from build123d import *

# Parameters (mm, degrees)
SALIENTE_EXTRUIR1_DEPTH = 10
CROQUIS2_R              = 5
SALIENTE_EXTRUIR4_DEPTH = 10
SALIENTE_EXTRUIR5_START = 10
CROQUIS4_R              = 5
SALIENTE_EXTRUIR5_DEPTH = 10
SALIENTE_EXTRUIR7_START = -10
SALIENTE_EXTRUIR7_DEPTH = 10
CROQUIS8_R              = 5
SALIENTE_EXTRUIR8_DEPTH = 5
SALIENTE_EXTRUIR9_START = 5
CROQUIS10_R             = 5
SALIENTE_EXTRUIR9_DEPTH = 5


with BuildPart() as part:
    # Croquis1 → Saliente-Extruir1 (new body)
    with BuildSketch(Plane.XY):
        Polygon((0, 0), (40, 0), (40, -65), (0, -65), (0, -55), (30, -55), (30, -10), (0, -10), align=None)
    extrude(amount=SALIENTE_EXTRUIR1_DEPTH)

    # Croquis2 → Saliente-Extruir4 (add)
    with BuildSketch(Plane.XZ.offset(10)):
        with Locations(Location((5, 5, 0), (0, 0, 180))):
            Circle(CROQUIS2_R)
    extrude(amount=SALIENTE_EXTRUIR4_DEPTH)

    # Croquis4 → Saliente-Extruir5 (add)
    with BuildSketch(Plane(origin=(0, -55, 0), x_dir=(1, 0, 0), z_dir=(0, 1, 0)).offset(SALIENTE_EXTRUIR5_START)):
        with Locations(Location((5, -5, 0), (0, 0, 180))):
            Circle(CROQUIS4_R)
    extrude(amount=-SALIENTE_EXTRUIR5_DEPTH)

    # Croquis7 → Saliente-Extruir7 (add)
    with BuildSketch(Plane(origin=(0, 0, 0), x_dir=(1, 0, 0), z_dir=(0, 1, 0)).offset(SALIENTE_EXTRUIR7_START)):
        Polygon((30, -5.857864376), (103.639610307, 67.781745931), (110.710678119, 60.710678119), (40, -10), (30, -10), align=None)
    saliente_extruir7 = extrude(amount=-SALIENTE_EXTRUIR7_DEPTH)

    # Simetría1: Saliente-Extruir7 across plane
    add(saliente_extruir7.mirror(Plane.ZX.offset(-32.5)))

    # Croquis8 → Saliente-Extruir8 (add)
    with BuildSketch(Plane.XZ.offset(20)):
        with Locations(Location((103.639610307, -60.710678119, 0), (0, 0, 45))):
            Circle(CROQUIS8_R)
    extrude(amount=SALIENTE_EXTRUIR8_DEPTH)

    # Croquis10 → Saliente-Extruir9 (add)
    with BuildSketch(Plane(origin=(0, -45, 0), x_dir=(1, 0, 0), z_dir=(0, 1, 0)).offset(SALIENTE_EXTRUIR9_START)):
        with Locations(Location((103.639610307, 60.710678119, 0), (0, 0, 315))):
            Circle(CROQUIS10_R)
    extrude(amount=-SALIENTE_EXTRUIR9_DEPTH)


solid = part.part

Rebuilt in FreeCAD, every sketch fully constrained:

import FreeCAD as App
import Part
import Sketcher
Q = App.Units.Quantity


def add_polygon(sketch, points):
    """Adds a closed chain of lines whose ends are joined by coincident constraints."""
    first, n = sketch.GeometryCount, len(points)
    for a, b in zip(points, points[1:] + points[:1]):
        sketch.addGeometry(Part.LineSegment(App.Vector(*a, 0), App.Vector(*b, 0)), False)
    for i in range(n):
        sketch.addConstraint(Sketcher.Constraint("Coincident", first + i, 2, first + (i + 1) % n, 1))

doc = App.newDocument("Part")
params = doc.addObject("Spreadsheet::Sheet", "Params")
for row, (alias, value) in enumerate([
    ("sketch1_width", "40 mm"),
    ("sketch1_width2", "30 mm"),
    ("sketch1_height", "10 mm"),
    ("sketch1_height2", "45 mm"),
    ("pad1_length", "10 mm"),
    ("sketch2_diameter", "10 mm"),
    ("pad2_length", "10 mm"),
    ("sketch3_diameter", "10 mm"),
    ("pad3_length", "10 mm"),
    ("sketch4_width", "10 mm"),
    ("sketch4_length", "100 mm"),
    ("sketch4_length2", "10 mm"),
    ("pad4_length", "10 mm"),
    ("sketch5_diameter", "10 mm"),
    ("pad5_length", "5 mm"),
    ("sketch6_diameter", "10 mm"),
    ("pad6_length", "5 mm"),
], start=1):
    params.set(f"A{row}", alias)
    params.set(f"B{row}", "=" + value)
    params.setAlias(f"B{row}", alias)

body = doc.addObject("PartDesign::Body", "Body")

# Sketch on XY plane
sketch1 = body.newObject("Sketcher::SketchObject", "Sketch")
sketch1.AttachmentSupport = (doc.getObject("XY_Plane"), [""])
sketch1.MapMode = "FlatFace"
add_polygon(sketch1, [(40, 0), (0, 0), (0, -10), (30, -10), (30, -55), (0, -55), (0, -65), (40, -65)])  # lines 0-7
sketch1.addConstraint([
    Sketcher.Constraint("Horizontal", 0),
    Sketcher.Constraint("Vertical", 1),
    Sketcher.Constraint("Horizontal", 2),
    Sketcher.Constraint("Vertical", 3),
    Sketcher.Constraint("Horizontal", 4),
    Sketcher.Constraint("Vertical", 5),
    Sketcher.Constraint("Horizontal", 6),
    Sketcher.Constraint("Vertical", 7),
    Sketcher.Constraint("Coincident", 0, 2, -1, 1),
    Sketcher.Constraint("PointOnObject", 4, 2, -2),
    Sketcher.Constraint("Equal", 1, 5),
    Sketcher.Constraint("DistanceX", 0, 2, 0, 1, Q("40 mm")),
    Sketcher.Constraint("DistanceX", 2, 1, 2, 2, Q("30 mm")),
    Sketcher.Constraint("DistanceY", 1, 2, 1, 1, Q("10 mm")),
    Sketcher.Constraint("DistanceY", 3, 2, 3, 1, Q("45 mm")),
])
sketch1.setExpression("Constraints[19]", "Params.sketch1_width")
sketch1.setExpression("Constraints[20]", "Params.sketch1_width2")
sketch1.setExpression("Constraints[21]", "Params.sketch1_height")
sketch1.setExpression("Constraints[22]", "Params.sketch1_height2")
pad1 = body.newObject("PartDesign::Pad", "Pad")
pad1.Profile = sketch1
pad1.setExpression("Length", "Params.pad1_length")

# Sketch on XZ plane
sketch2 = body.newObject("Sketcher::SketchObject", "Sketch001")
sketch2.AttachmentSupport = (doc.getObject("XZ_Plane"), [""])
sketch2.MapMode = "FlatFace"
sketch2.AttachmentOffset = App.Placement(App.Vector(0, 0, 10), App.Rotation())
sketch2.addGeometry(Part.Circle(App.Vector(5, 5, 0), App.Vector(0, 0, 1), 5), False)
sketch2.addConstraint([
    Sketcher.Constraint("Diameter", 0, Q("10 mm")),
    Sketcher.Constraint("DistanceX", -1, 1, 0, 3, Q("5 mm")),
    Sketcher.Constraint("DistanceY", -1, 1, 0, 3, Q("5 mm")),
])
sketch2.setExpression("Constraints[0]", "Params.sketch2_diameter")
pad2 = body.newObject("PartDesign::Pad", "Pad001")
pad2.Profile = sketch2
pad2.setExpression("Length", "Params.pad2_length")

# Sketch on XZ plane
sketch3 = body.newObject("Sketcher::SketchObject", "Sketch002")
sketch3.AttachmentSupport = (doc.getObject("XZ_Plane"), [""])
sketch3.MapMode = "FlatFace"
sketch3.AttachmentOffset = App.Placement(App.Vector(0, 0, 45), App.Rotation())
sketch3.addGeometry(Part.Circle(App.Vector(5, 5, 0), App.Vector(0, 0, 1), 5), False)
sketch3.addConstraint([
    Sketcher.Constraint("Diameter", 0, Q("10 mm")),
    Sketcher.Constraint("DistanceX", -1, 1, 0, 3, Q("5 mm")),
    Sketcher.Constraint("DistanceY", -1, 1, 0, 3, Q("5 mm")),
])
sketch3.setExpression("Constraints[0]", "Params.sketch3_diameter")
pad3 = body.newObject("PartDesign::Pad", "Pad002")
pad3.Profile = sketch3
pad3.setExpression("Length", "Params.pad3_length")

# Sketch on XZ plane
sketch4 = body.newObject("Sketcher::SketchObject", "Sketch003")
sketch4.AttachmentSupport = (doc.getObject("XZ_Plane"), [""])
sketch4.MapMode = "FlatFace"
sketch4.AttachmentOffset = App.Placement(App.Vector(0, 0, 10), App.Rotation())
add_polygon(sketch4, [(103.63961, -67.781746), (30, 5.857864), (30, 10), (40, 10), (110.710678, -60.710678)])  # lines 0-4
sketch4.addConstraint([
    Sketcher.Constraint("Vertical", 1),
    Sketcher.Constraint("Horizontal", 2),
    Sketcher.Constraint("Parallel", 0, 3),
    Sketcher.Constraint("Perpendicular", 3, 4),
    Sketcher.Constraint("DistanceX", 2, 1, 2, 2, Q("10 mm")),
    Sketcher.Constraint("Angle", 0, Q("135 deg")),
    Sketcher.Constraint("Distance", 3, Q("100 mm")),
    Sketcher.Constraint("Distance", 4, Q("10 mm")),
    Sketcher.Constraint("DistanceX", -1, 1, 0, 2, Q("30 mm")),
    Sketcher.Constraint("DistanceY", -1, 1, 1, 2, Q("10 mm")),
])
sketch4.setExpression("Constraints[9]", "Params.sketch4_width")
sketch4.setExpression("Constraints[11]", "Params.sketch4_length")
sketch4.setExpression("Constraints[12]", "Params.sketch4_length2")
pad4 = body.newObject("PartDesign::Pad", "Pad003")
pad4.Profile = sketch4
pad4.setExpression("Length", "Params.pad4_length")
doc.recompute()

datumplane = body.newObject("PartDesign::Plane", "DatumPlane")
datumplane.AttachmentSupport = (doc.getObject("XZ_Plane"), [""])
datumplane.MapMode = "FlatFace"
datumplane.AttachmentOffset = App.Placement(App.Vector(0, 0, 32.5), App.Rotation())
mirrored = body.newObject("PartDesign::Mirrored", "Mirrored")
mirrored.Originals = [pad4]
mirrored.MirrorPlane = (datumplane, [""])
body.Tip = mirrored

# Sketch on XZ plane
sketch5 = body.newObject("Sketcher::SketchObject", "Sketch004")
sketch5.AttachmentSupport = (doc.getObject("XZ_Plane"), [""])
sketch5.MapMode = "FlatFace"
sketch5.AttachmentOffset = App.Placement(App.Vector(0, 0, 20), App.Rotation())
sketch5.addGeometry(Part.Circle(App.Vector(103.63961, -60.710678, 0), App.Vector(0, 0, 1), 5), False)
sketch5.addConstraint([
    Sketcher.Constraint("Diameter", 0, Q("10 mm")),
    Sketcher.Constraint("DistanceX", -1, 1, 0, 3, Q("103.63961 mm")),
    Sketcher.Constraint("DistanceY", 0, 3, -1, 1, Q("60.710678 mm")),
])
sketch5.setExpression("Constraints[0]", "Params.sketch5_diameter")
pad5 = body.newObject("PartDesign::Pad", "Pad004")
pad5.Profile = sketch5
pad5.setExpression("Length", "Params.pad5_length")

# Sketch on XZ plane
sketch6 = body.newObject("Sketcher::SketchObject", "Sketch005")
sketch6.AttachmentSupport = (doc.getObject("XZ_Plane"), [""])
sketch6.MapMode = "FlatFace"
sketch6.AttachmentOffset = App.Placement(App.Vector(0, 0, 40), App.Rotation())
sketch6.addGeometry(Part.Circle(App.Vector(103.63961, -60.710678, 0), App.Vector(0, 0, 1), 5), False)
sketch6.addConstraint([
    Sketcher.Constraint("Diameter", 0, Q("10 mm")),
    Sketcher.Constraint("DistanceX", -1, 1, 0, 3, Q("103.63961 mm")),
    Sketcher.Constraint("DistanceY", 0, 3, -1, 1, Q("60.710678 mm")),
])
sketch6.setExpression("Constraints[0]", "Params.sketch6_diameter")
pad6 = body.newObject("PartDesign::Pad", "Pad005")
pad6.Profile = sketch6
pad6.setExpression("Length", "Params.pad6_length")

doc.recompute()
